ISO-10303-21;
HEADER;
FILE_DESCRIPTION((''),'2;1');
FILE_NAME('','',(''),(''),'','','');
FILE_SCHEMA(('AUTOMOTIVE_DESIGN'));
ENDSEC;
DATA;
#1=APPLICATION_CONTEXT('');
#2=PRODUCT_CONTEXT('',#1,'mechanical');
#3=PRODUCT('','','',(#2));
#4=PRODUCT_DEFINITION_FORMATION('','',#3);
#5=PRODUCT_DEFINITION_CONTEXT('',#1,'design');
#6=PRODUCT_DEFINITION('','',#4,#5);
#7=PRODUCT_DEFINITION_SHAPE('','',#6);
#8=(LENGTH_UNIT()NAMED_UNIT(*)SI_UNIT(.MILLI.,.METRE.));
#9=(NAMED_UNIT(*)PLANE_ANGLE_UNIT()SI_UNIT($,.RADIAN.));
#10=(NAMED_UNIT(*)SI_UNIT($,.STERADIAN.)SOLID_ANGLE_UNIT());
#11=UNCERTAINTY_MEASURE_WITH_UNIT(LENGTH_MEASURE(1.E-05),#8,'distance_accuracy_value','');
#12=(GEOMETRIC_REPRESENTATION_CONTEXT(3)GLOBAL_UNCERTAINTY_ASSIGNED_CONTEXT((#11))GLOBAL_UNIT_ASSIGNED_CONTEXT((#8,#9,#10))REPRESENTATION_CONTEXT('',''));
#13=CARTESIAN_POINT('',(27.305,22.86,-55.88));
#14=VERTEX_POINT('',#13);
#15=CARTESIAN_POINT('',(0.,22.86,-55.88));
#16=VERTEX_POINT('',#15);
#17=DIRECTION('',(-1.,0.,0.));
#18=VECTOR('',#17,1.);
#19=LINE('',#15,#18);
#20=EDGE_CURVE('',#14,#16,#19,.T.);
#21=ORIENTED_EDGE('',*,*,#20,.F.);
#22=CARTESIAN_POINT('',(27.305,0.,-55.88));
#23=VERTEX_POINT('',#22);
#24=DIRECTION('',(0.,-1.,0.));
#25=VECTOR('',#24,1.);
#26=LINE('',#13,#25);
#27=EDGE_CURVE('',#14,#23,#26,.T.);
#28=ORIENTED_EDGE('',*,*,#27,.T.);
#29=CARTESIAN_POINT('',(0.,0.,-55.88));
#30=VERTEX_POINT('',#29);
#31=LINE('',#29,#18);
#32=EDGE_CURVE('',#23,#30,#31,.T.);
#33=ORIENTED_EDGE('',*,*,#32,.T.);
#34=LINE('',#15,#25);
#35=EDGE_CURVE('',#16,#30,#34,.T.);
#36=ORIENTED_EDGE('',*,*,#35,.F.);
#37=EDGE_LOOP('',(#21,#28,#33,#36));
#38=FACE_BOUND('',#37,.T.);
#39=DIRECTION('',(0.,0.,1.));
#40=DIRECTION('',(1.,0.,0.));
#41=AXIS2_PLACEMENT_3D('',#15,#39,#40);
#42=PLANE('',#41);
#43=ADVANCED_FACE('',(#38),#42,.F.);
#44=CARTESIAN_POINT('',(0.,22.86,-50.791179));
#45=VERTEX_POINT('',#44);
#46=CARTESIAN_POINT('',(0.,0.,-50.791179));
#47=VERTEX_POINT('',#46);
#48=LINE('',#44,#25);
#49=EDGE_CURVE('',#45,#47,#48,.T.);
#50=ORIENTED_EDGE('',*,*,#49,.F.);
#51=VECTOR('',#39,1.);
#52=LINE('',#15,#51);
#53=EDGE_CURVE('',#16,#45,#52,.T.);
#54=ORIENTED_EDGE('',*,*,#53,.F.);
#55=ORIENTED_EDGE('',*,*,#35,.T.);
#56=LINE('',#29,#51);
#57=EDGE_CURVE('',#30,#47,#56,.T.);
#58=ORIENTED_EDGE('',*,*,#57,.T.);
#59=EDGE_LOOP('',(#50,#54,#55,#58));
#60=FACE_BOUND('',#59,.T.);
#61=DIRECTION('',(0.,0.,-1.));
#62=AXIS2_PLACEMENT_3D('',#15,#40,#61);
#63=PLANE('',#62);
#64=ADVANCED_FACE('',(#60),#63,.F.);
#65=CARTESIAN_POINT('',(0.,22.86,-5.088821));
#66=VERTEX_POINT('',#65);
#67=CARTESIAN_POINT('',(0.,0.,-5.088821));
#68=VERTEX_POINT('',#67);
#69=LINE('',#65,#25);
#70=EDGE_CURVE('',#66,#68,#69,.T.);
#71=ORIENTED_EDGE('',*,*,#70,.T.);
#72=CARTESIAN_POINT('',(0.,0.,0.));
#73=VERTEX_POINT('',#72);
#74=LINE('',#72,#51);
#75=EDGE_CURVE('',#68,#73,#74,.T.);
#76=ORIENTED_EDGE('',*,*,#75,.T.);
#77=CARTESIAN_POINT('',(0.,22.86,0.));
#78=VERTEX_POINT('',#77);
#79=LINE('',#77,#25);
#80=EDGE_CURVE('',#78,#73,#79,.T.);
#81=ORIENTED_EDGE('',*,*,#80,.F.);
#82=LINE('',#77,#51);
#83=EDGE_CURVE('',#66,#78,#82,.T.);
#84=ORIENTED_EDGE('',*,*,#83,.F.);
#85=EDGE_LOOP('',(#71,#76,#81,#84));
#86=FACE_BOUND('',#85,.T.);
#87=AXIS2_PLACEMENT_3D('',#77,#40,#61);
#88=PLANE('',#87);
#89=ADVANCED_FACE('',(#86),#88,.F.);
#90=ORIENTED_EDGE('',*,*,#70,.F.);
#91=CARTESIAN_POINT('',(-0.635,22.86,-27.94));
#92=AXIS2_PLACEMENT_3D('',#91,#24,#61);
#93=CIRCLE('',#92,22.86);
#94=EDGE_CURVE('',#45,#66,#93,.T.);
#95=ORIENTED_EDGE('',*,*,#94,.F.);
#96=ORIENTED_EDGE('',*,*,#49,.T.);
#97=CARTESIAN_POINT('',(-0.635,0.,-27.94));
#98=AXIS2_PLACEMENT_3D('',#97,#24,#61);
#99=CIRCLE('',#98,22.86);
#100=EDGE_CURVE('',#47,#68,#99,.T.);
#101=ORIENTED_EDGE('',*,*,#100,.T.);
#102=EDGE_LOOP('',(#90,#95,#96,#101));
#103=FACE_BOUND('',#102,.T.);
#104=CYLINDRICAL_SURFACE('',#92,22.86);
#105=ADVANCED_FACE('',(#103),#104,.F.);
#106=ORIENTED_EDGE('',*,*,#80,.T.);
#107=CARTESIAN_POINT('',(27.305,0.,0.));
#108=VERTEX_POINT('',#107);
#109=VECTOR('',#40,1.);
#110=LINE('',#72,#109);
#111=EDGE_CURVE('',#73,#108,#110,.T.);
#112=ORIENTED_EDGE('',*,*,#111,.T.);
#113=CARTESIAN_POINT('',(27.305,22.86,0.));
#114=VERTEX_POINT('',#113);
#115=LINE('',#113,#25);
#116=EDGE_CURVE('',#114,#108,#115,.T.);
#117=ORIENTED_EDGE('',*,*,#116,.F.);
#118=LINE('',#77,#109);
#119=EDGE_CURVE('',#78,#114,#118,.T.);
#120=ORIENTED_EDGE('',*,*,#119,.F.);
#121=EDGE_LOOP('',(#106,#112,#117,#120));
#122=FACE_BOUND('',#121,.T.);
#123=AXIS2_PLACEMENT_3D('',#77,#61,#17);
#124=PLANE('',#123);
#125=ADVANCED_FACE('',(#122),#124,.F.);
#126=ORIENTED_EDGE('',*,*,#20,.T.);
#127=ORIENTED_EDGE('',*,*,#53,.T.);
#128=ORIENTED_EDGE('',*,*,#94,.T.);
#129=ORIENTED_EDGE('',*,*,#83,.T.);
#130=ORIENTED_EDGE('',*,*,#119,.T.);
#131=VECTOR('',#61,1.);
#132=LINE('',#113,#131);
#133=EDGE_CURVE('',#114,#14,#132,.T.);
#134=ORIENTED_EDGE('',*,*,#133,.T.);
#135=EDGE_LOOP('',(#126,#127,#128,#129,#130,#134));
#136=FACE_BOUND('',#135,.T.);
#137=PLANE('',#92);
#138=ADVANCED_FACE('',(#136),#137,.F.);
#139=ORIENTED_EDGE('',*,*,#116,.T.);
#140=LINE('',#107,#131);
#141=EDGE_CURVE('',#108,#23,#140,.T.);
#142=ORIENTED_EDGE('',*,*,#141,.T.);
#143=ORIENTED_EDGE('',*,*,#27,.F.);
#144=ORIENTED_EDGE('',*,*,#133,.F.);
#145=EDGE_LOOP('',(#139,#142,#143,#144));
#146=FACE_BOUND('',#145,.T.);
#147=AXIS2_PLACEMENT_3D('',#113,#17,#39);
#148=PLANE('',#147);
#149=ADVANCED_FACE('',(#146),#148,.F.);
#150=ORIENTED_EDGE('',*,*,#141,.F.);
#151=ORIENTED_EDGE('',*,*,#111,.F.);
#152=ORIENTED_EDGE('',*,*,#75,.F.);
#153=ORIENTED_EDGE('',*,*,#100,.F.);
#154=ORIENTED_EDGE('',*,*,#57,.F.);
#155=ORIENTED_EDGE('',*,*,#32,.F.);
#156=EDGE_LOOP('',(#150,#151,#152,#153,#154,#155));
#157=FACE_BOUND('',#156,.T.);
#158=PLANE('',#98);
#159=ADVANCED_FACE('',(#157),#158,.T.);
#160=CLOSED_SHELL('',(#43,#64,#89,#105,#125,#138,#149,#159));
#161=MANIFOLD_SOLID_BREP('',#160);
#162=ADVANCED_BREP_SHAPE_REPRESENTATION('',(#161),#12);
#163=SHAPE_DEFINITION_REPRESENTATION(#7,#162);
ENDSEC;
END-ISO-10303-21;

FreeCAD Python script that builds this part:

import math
import FreeCAD as App
import Part
import Sketcher
from FreeCAD import Vector
Q = App.Units.Quantity

doc = App.newDocument("Part")
body = doc.addObject("PartDesign::Body", "Body")

# Sketch on XZ plane
sketch1 = body.newObject("Sketcher::SketchObject", "Sketch")
sketch1.AttachmentSupport = (doc.getObject("XZ_Plane"), [""])
sketch1.MapMode = "FlatFace"
sketch1.addGeometry(Part.LineSegment(Vector(0, -56, 0), Vector(0, -51, 0)), False)
sketch1.addGeometry(Part.ArcOfCircle(Part.Circle(Vector(-1, -28, 0), Vector(0, 0, 1), 23), math.radians(-88), math.radians(88)), False)
sketch1.addGeometry(Part.LineSegment(Vector(0, -5, 0), Vector(0, 0, 0)), False)
sketch1.addGeometry(Part.LineSegment(Vector(0, 0, 0), Vector(27, 0, 0)), False)
sketch1.addGeometry(Part.LineSegment(Vector(27, 0, 0), Vector(27, -56, 0)), False)
sketch1.addGeometry(Part.LineSegment(Vector(27, -56, 0), Vector(0, -56, 0)), False)
sketch1.addConstraint(Sketcher.Constraint("Coincident", 0, 2, 1, 1))
sketch1.addConstraint(Sketcher.Constraint("Coincident", 1, 2, 2, 1))
sketch1.addConstraint(Sketcher.Constraint("Coincident", 2, 2, 3, 1))
sketch1.addConstraint(Sketcher.Constraint("Coincident", 3, 2, 4, 1))
sketch1.addConstraint(Sketcher.Constraint("Coincident", 4, 2, 5, 1))
sketch1.addConstraint(Sketcher.Constraint("Coincident", 5, 2, 0, 1))
sketch1.addConstraint(Sketcher.Constraint("Vertical", 0))
sketch1.addConstraint(Sketcher.Constraint("Vertical", 2))
sketch1.addConstraint(Sketcher.Constraint("Horizontal", 3))
sketch1.addConstraint(Sketcher.Constraint("Vertical", 4))
sketch1.addConstraint(Sketcher.Constraint("Horizontal", 5))
sketch1.addConstraint(Sketcher.Constraint("Coincident", 2, 2, -1, 1))
sketch1.addConstraint(Sketcher.Constraint("PointOnObject", 0, 2, -2))
sketch1.addConstraint(Sketcher.Constraint("Equal", 0, 2))
sketch1.addConstraint(Sketcher.Constraint("Radius", 1, Q("0.9 in")))
sketch1.addConstraint(Sketcher.Constraint("DistanceY", 4, 2, 4, 1, Q("2.2 in")))
sketch1.addConstraint(Sketcher.Constraint("DistanceX", 1, 3, 3, 2, Q("1.1 in")))
sketch1.addConstraint(Sketcher.Constraint("DistanceX", 3, 1, 3, 2, Q("1.075 in")))
pad1 = body.newObject("PartDesign::Pad", "Pad")
pad1.Profile = sketch1
pad1.Length = Q("0.9 in")
pad1.Reversed = True

doc.recompute()
